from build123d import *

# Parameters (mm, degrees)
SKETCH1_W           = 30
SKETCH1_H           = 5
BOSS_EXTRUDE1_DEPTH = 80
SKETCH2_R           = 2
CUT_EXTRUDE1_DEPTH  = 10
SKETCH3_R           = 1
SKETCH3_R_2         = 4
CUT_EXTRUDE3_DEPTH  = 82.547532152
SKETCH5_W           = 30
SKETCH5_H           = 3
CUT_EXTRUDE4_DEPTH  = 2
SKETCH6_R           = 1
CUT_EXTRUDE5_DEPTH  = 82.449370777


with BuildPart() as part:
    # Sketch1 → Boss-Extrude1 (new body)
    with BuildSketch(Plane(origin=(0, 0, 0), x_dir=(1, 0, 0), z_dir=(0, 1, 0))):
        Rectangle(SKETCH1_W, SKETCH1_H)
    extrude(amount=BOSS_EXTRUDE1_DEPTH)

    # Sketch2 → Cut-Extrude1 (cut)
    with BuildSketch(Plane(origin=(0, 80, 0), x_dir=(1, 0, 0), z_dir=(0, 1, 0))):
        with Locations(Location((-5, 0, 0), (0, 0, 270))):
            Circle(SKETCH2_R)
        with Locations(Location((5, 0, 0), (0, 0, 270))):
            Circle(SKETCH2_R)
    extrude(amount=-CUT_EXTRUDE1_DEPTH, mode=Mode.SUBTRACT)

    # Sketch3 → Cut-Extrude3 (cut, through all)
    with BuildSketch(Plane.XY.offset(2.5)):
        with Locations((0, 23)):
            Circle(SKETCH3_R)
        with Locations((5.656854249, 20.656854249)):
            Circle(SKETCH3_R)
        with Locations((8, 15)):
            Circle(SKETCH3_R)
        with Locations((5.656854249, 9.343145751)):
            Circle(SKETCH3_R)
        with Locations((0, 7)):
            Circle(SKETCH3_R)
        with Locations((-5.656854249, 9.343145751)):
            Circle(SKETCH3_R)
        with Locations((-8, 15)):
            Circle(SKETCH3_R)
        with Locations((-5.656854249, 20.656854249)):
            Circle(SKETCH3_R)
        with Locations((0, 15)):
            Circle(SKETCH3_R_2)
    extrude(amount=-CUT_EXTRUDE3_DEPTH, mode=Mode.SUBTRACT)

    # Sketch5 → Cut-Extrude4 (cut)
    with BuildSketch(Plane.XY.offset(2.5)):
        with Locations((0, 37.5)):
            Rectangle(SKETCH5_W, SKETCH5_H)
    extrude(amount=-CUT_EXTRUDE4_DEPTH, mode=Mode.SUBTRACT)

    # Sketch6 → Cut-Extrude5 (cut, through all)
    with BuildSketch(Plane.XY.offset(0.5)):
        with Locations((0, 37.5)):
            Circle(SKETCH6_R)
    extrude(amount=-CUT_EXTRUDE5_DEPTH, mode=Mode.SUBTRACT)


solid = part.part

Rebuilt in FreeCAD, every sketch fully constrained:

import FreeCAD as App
import Part
import Sketcher
Q = App.Units.Quantity

doc = App.newDocument("Part")
params = doc.addObject("Spreadsheet::Sheet", "Params")
for row, (alias, value) in enumerate([
    ("sketch1_width", "30 mm"),
    ("sketch1_height", "5 mm"),
    ("pad1_length", "80 mm"),
    ("sketch2_diameter", "4 mm"),
    ("pocket1_length", "10 mm"),
    ("sketch3_diameter", "2 mm"),
    ("sketch3_diameter2", "8 mm"),
    ("sketch4_width", "30 mm"),
    ("sketch4_height", "3 mm"),
    ("pocket3_length", "2 mm"),
    ("sketch5_diameter", "2 mm"),
], start=1):
    params.set(f"A{row}", alias)
    params.set(f"B{row}", "=" + value)
    params.setAlias(f"B{row}", alias)

body = doc.addObject("PartDesign::Body", "Body")

sketch1 = body.newObject("Sketcher::SketchObject", "Sketch")
sketch1.AttachmentSupport = (doc.getObject("XZ_Plane"), [""])
sketch1.MapMode = "FlatFace"
sketch1.addGeometry([
    Part.LineSegment(App.Vector(-15, -2, 0), App.Vector(-15, 2, 0)),
    Part.LineSegment(App.Vector(-15, 2, 0), App.Vector(15, 2, 0)),
    Part.LineSegment(App.Vector(15, 2, 0), App.Vector(15, -2, 0)),
    Part.LineSegment(App.Vector(15, -2, 0), App.Vector(-15, -2, 0)),
], False)
sketch1.addConstraint([
    Sketcher.Constraint("Coincident", 0, 2, 1, 1),
    Sketcher.Constraint("Coincident", 1, 2, 2, 1),
    Sketcher.Constraint("Coincident", 2, 2, 3, 1),
    Sketcher.Constraint("Coincident", 3, 2, 0, 1),
    Sketcher.Constraint("Vertical", 0),
    Sketcher.Constraint("Horizontal", 1),
    Sketcher.Constraint("Vertical", 2),
    Sketcher.Constraint("Horizontal", 3),
    Sketcher.Constraint("Symmetric", 0, 2, 2, 2, -1, 1),
    Sketcher.Constraint("DistanceX", 1, 1, 1, 2, Q("30 mm")),
    Sketcher.Constraint("DistanceY", 0, 1, 0, 2, Q("5 mm")),
])
sketch1.setExpression("Constraints[9]", "Params.sketch1_width")
sketch1.setExpression("Constraints[10]", "Params.sketch1_height")
pad1 = body.newObject("PartDesign::Pad", "Pad")
pad1.Profile = sketch1
pad1.setExpression("Length", "Params.pad1_length")
pad1.Reversed = True

sketch2 = body.newObject("Sketcher::SketchObject", "Sketch001")
sketch2.AttachmentSupport = (doc.getObject("XZ_Plane"), [""])
sketch2.MapMode = "FlatFace"
sketch2.AttachmentOffset = App.Placement(App.Vector(0, 0, -80), App.Rotation())
sketch2.addGeometry([
    Part.Circle(App.Vector(-5, 0, 0), App.Vector(0, 0, 1), 2),
    Part.Circle(App.Vector(5, 0, 0), App.Vector(0, 0, 1), 2),
], False)
sketch2.addConstraint([
    Sketcher.Constraint("Equal", 0, 1),
    Sketcher.Constraint("Symmetric", 0, 3, 1, 3, -1, 1),
    Sketcher.Constraint("PointOnObject", 0, 3, -1),
    Sketcher.Constraint("Diameter", 0, Q("4 mm")),
    Sketcher.Constraint("DistanceX", 0, 3, -1, 1, Q("5 mm")),
])
sketch2.setExpression("Constraints[3]", "Params.sketch2_diameter")
pocket1 = body.newObject("PartDesign::Pocket", "Pocket")
pocket1.Profile = sketch2
pocket1.setExpression("Length", "Params.pocket1_length")
pocket1.Reversed = True

sketch3 = body.newObject("Sketcher::SketchObject", "Sketch002")
sketch3.AttachmentSupport = (doc.getObject("XY_Plane"), [""])
sketch3.MapMode = "FlatFace"
sketch3.AttachmentOffset = App.Placement(App.Vector(0, 0, 2.5), App.Rotation())
sketch3.addGeometry([
    Part.Circle(App.Vector(0, 23, 0), App.Vector(0, 0, 1), 1),
    Part.Circle(App.Vector(5.7, 20.7, 0), App.Vector(0, 0, 1), 1),
    Part.Circle(App.Vector(8, 15, 0), App.Vector(0, 0, 1), 1),
    Part.Circle(App.Vector(5.7, 9.3, 0), App.Vector(0, 0, 1), 1),
    Part.Circle(App.Vector(0, 7, 0), App.Vector(0, 0, 1), 1),
    Part.Circle(App.Vector(-5.7, 9.3, 0), App.Vector(0, 0, 1), 1),
    Part.Circle(App.Vector(-8, 15, 0), App.Vector(0, 0, 1), 1),
    Part.Circle(App.Vector(-5.7, 20.7, 0), App.Vector(0, 0, 1), 1),
    Part.Circle(App.Vector(0, 15, 0), App.Vector(0, 0, 1), 4),
], False)
sketch3.addConstraint([
    Sketcher.Constraint("Equal", 0, 1),
    Sketcher.Constraint("Equal", 1, 2),
    Sketcher.Constraint("Equal", 2, 3),
    Sketcher.Constraint("Equal", 3, 4),
    Sketcher.Constraint("Equal", 4, 5),
    Sketcher.Constraint("Equal", 5, 6),
    Sketcher.Constraint("Equal", 6, 7),
    Sketcher.Constraint("Symmetric", 3, 3, 5, 3, -2),
    Sketcher.Constraint("Symmetric", 2, 3, 6, 3, -2),
    Sketcher.Constraint("Symmetric", 1, 3, 7, 3, -2),
    Sketcher.Constraint("PointOnObject", 0, 3, -2),
    Sketcher.Constraint("PointOnObject", 4, 3, -2),
    Sketcher.Constraint("PointOnObject", 8, 3, -2),
    Sketcher.Constraint("Horizontal", 6, 3, 8, 3),
    Sketcher.Constraint("Vertical", 1, 3, 3, 3),
    Sketcher.Constraint("Diameter", 0, Q("2 mm")),
    Sketcher.Constraint("Diameter", 8, Q("8 mm")),
    Sketcher.Constraint("DistanceY", -1, 1, 0, 3, Q("23 mm")),
    Sketcher.Constraint("DistanceX", -1, 1, 2, 3, Q("8 mm")),
    Sketcher.Constraint("DistanceY", -1, 1, 2, 3, Q("15 mm")),
    Sketcher.Constraint("DistanceY", -1, 1, 4, 3, Q("7 mm")),
    Sketcher.Constraint("DistanceY", 3, 3, 1, 3, Q("11.313708 mm")),
    Sketcher.Constraint("DistanceX", 5, 3, 3, 3, Q("11.313708 mm")),
    Sketcher.Constraint("DistanceY", -1, 1, 1, 3, Q("20.656854 mm")),
])
sketch3.setExpression("Constraints[15]", "Params.sketch3_diameter")
sketch3.setExpression("Constraints[16]", "Params.sketch3_diameter2")
pocket2 = body.newObject("PartDesign::Pocket", "Pocket001")
pocket2.Profile = sketch3
pocket2.Type = "ThroughAll"

sketch4 = body.newObject("Sketcher::SketchObject", "Sketch003")
sketch4.AttachmentSupport = (doc.getObject("XY_Plane"), [""])
sketch4.MapMode = "FlatFace"
sketch4.AttachmentOffset = App.Placement(App.Vector(0, 0, 2.5), App.Rotation())
sketch4.addGeometry([
    Part.LineSegment(App.Vector(-15, 39, 0), App.Vector(-15, 36, 0)),
    Part.LineSegment(App.Vector(-15, 36, 0), App.Vector(15, 36, 0)),
    Part.LineSegment(App.Vector(15, 36, 0), App.Vector(15, 39, 0)),
    Part.LineSegment(App.Vector(15, 39, 0), App.Vector(-15, 39, 0)),
], False)
sketch4.addConstraint([
    Sketcher.Constraint("Coincident", 0, 2, 1, 1),
    Sketcher.Constraint("Coincident", 1, 2, 2, 1),
    Sketcher.Constraint("Coincident", 2, 2, 3, 1),
    Sketcher.Constraint("Coincident", 3, 2, 0, 1),
    Sketcher.Constraint("Vertical", 0),
    Sketcher.Constraint("Horizontal", 1),
    Sketcher.Constraint("Vertical", 2),
    Sketcher.Constraint("Horizontal", 3),
    Sketcher.Constraint("DistanceX", 1, 1, 1, 2, Q("30 mm")),
    Sketcher.Constraint("DistanceY", 0, 2, 0, 1, Q("3 mm")),
    Sketcher.Constraint("DistanceX", 0, 2, -1, 1, Q("15 mm")),
    Sketcher.Constraint("DistanceY", -1, 1, 0, 2, Q("36 mm")),
])
sketch4.setExpression("Constraints[8]", "Params.sketch4_width")
sketch4.setExpression("Constraints[9]", "Params.sketch4_height")
pocket3 = body.newObject("PartDesign::Pocket", "Pocket002")
pocket3.Profile = sketch4
pocket3.setExpression("Length", "Params.pocket3_length")

sketch5 = body.newObject("Sketcher::SketchObject", "Sketch004")
sketch5.AttachmentSupport = (doc.getObject("XY_Plane"), [""])
sketch5.MapMode = "FlatFace"
sketch5.AttachmentOffset = App.Placement(App.Vector(0, 0, 0.5), App.Rotation())
sketch5.addGeometry(Part.Circle(App.Vector(0, 37.5, 0), App.Vector(0, 0, 1), 1), False)
sketch5.addConstraint([
    Sketcher.Constraint("PointOnObject", 0, 3, -2),
    Sketcher.Constraint("Diameter", 0, Q("2 mm")),
    Sketcher.Constraint("DistanceY", -1, 1, 0, 3, Q("37.5 mm")),
])
sketch5.setExpression("Constraints[1]", "Params.sketch5_diameter")
pocket4 = body.newObject("PartDesign::Pocket", "Pocket003")
pocket4.Profile = sketch5
pocket4.Type = "ThroughAll"

doc.recompute()
